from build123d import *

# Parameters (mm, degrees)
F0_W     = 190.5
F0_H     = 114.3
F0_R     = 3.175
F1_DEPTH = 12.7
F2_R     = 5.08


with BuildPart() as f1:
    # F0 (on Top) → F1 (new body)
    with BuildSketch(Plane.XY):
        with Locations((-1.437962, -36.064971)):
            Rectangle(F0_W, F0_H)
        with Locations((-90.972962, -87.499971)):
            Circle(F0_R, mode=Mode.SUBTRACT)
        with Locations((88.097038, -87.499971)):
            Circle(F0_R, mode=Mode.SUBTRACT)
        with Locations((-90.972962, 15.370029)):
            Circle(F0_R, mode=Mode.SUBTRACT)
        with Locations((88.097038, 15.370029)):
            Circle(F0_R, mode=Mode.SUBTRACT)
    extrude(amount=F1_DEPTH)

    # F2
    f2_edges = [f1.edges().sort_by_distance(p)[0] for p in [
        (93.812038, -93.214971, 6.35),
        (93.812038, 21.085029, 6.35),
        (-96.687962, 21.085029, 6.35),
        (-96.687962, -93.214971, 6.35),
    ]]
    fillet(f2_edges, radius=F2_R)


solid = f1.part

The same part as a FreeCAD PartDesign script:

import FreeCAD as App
import Part
import Sketcher

V = App.Vector
Q = App.Units.Quantity


def edges_at(feature, points):
    """Names of the edges that pass closest to the given points."""
    edges = feature.Shape.Edges
    near = lambda p: min(range(len(edges)), key=lambda i: edges[i].distToShape(Part.Vertex(*p))[0])
    return sorted({f"Edge{near(p) + 1}" for p in points})


def add_polygon(sketch, points):
    """Adds a closed chain of lines whose ends are joined by coincident constraints."""
    first, n = sketch.GeometryCount, len(points)
    for a, b in zip(points, points[1:] + points[:1]):
        sketch.addGeometry(Part.LineSegment(App.Vector(*a, 0), App.Vector(*b, 0)), False)
    for i in range(n):
        sketch.addConstraint(Sketcher.Constraint("Coincident", first + i, 2, first + (i + 1) % n, 1))

doc = App.newDocument("Part")
body = doc.addObject("PartDesign::Body", "Body")

sketch1 = doc.addObject("Sketcher::SketchObject", "Sketch")
body.addObject(sketch1)
sketch1.AttachmentSupport = (doc.XY_Plane, [""])
sketch1.MapMode = "FlatFace"
add_polygon(sketch1, [(-96.7, 21.1), (-96.7, -93.2), (93.8, -93.2), (93.8, 21.1)])
sketch1.addGeometry(Part.Circle(V(-91, -87.5, 0), V(0, 0, 1), 3.2), False)
sketch1.addGeometry(Part.Circle(V(88.1, -87.5, 0), V(0, 0, 1), 3.2), False)
sketch1.addGeometry(Part.Circle(V(-91, 15.4, 0), V(0, 0, 1), 3.2), False)
sketch1.addGeometry(Part.Circle(V(88.1, 15.4, 0), V(0, 0, 1), 3.2), False)
sketch1.addConstraint([
    Sketcher.Constraint("Vertical", 0),
    Sketcher.Constraint("Horizontal", 1),
    Sketcher.Constraint("Vertical", 2),
    Sketcher.Constraint("Horizontal", 3),
    Sketcher.Constraint("Equal", 4, 5),
    Sketcher.Constraint("Equal", 5, 6),
    Sketcher.Constraint("Equal", 6, 7),
    Sketcher.Constraint("Horizontal", 4, 3, 5, 3),
    Sketcher.Constraint("Horizontal", 6, 3, 7, 3),
    Sketcher.Constraint("Vertical", 4, 3, 6, 3),
    Sketcher.Constraint("Vertical", 5, 3, 7, 3),
    Sketcher.Constraint("Diameter", 4, Q("0.25 in")),
    Sketcher.Constraint("DistanceX", 1, 1, 1, 2, Q("7.5 in")),
    Sketcher.Constraint("DistanceY", 0, 2, 0, 1, Q("4.5 in")),
    Sketcher.Constraint("DistanceX", 4, 3, 5, 3, Q("7.05 in")),
    Sketcher.Constraint("DistanceY", 4, 3, 6, 3, Q("4.05 in")),
    Sketcher.Constraint("DistanceX", 0, 2, 4, 3, Q("0.225 in")),
    Sketcher.Constraint("DistanceY", 0, 2, 4, 3, Q("0.225 in")),
    Sketcher.Constraint("DistanceX", 4, 3, -1, 1, 90.972962),
    Sketcher.Constraint("DistanceY", 4, 3, -1, 1, 87.499971),
])
pad1 = doc.addObject("PartDesign::Pad", "Pad")
body.addObject(pad1)
pad1.Profile = sketch1
pad1.Length = Q("0.5 in")
doc.recompute()

fillet = doc.addObject("PartDesign::Fillet", "Fillet")
body.addObject(fillet)
fillet.Base = (pad1, edges_at(pad1, [
    (93.812, -93.215, 6.35),
    (93.812, 21.085, 6.35),
    (-96.688, 21.085, 6.35),
    (-96.688, -93.215, 6.35),
]))
fillet.Radius = Q("0.2 in")

doc.recompute()
